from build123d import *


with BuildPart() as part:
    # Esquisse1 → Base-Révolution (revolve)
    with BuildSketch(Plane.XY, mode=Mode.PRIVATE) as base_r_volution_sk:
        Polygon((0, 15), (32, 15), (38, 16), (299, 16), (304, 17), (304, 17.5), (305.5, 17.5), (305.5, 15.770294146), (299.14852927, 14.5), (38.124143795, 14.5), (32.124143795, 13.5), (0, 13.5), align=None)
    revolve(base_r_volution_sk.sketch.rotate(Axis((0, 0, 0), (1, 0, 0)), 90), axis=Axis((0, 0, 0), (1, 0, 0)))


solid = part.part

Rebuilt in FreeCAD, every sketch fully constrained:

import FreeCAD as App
import Part
import Sketcher
Q = App.Units.Quantity


def add_polygon(sketch, points):
    """Adds a closed chain of lines whose ends are joined by coincident constraints."""
    first, n = sketch.GeometryCount, len(points)
    for a, b in zip(points, points[1:] + points[:1]):
        sketch.addGeometry(Part.LineSegment(App.Vector(*a, 0), App.Vector(*b, 0)), False)
    for i in range(n):
        sketch.addConstraint(Sketcher.Constraint("Coincident", first + i, 2, first + (i + 1) % n, 1))

doc = App.newDocument("Part")
body = doc.addObject("PartDesign::Body", "Body")

sketch1 = doc.addObject("Sketcher::SketchObject", "Sketch")
body.addObject(sketch1)
sketch1.AttachmentSupport = (doc.XY_Plane, [""])
sketch1.MapMode = "FlatFace"
add_polygon(sketch1, [(32, 15), (0, 15), (0, 13.5), (32.1, 13.5), (38.1, 14.5), (299.1, 14.5), (305.5, 15.8), (305.5, 17.5), (304, 17.5), (304, 17), (299, 16), (38, 16)])
sketch1.addConstraint([
    Sketcher.Constraint("Horizontal", 0),
    Sketcher.Constraint("Vertical", 1),
    Sketcher.Constraint("Horizontal", 2),
    Sketcher.Constraint("Horizontal", 4),
    Sketcher.Constraint("Vertical", 6),
    Sketcher.Constraint("Horizontal", 7),
    Sketcher.Constraint("Vertical", 8),
    Sketcher.Constraint("Horizontal", 10),
    Sketcher.Constraint("PointOnObject", 0, 2, -2),
    Sketcher.Constraint("Parallel", 5, 9),
    Sketcher.Constraint("Parallel", 3, 11),
    Sketcher.Constraint("Equal", 7, 1),
    Sketcher.Constraint("Equal", 3, 11),
    Sketcher.Constraint("DistanceX", 0, 2, 0, 1, Q("32 mm")),
    Sketcher.Constraint("DistanceX", 10, 2, 10, 1, Q("261 mm")),
    Sketcher.Constraint("DistanceX", 7, 2, 7, 1, Q("1.5 mm")),
    Sketcher.Constraint("DistanceY", 8, 2, 8, 1, Q("0.5 mm")),
    Sketcher.Constraint("DistanceY", -1, 1, 0, 2, Q("15 mm")),
    Sketcher.Constraint("DistanceX", -1, 1, 7, 2, Q("304 mm")),
    Sketcher.Constraint("DistanceY", -1, 1, 8, 2, Q("17 mm")),
    Sketcher.Constraint("DistanceX", -1, 1, 9, 2, Q("299 mm")),
    Sketcher.Constraint("DistanceY", -1, 1, 9, 2, Q("16 mm")),
    Sketcher.Constraint("DistanceX", 2, 1, 2, 2, Q("32.124144 mm")),
    Sketcher.Constraint("DistanceX", 4, 1, 4, 2, Q("261.024385 mm")),
])
revolution = doc.addObject("PartDesign::Revolution", "Revolution")
body.addObject(revolution)
revolution.Profile = sketch1
revolution.ReferenceAxis = (sketch1, ["H_Axis"])
revolution.Angle = 360

doc.recompute()
